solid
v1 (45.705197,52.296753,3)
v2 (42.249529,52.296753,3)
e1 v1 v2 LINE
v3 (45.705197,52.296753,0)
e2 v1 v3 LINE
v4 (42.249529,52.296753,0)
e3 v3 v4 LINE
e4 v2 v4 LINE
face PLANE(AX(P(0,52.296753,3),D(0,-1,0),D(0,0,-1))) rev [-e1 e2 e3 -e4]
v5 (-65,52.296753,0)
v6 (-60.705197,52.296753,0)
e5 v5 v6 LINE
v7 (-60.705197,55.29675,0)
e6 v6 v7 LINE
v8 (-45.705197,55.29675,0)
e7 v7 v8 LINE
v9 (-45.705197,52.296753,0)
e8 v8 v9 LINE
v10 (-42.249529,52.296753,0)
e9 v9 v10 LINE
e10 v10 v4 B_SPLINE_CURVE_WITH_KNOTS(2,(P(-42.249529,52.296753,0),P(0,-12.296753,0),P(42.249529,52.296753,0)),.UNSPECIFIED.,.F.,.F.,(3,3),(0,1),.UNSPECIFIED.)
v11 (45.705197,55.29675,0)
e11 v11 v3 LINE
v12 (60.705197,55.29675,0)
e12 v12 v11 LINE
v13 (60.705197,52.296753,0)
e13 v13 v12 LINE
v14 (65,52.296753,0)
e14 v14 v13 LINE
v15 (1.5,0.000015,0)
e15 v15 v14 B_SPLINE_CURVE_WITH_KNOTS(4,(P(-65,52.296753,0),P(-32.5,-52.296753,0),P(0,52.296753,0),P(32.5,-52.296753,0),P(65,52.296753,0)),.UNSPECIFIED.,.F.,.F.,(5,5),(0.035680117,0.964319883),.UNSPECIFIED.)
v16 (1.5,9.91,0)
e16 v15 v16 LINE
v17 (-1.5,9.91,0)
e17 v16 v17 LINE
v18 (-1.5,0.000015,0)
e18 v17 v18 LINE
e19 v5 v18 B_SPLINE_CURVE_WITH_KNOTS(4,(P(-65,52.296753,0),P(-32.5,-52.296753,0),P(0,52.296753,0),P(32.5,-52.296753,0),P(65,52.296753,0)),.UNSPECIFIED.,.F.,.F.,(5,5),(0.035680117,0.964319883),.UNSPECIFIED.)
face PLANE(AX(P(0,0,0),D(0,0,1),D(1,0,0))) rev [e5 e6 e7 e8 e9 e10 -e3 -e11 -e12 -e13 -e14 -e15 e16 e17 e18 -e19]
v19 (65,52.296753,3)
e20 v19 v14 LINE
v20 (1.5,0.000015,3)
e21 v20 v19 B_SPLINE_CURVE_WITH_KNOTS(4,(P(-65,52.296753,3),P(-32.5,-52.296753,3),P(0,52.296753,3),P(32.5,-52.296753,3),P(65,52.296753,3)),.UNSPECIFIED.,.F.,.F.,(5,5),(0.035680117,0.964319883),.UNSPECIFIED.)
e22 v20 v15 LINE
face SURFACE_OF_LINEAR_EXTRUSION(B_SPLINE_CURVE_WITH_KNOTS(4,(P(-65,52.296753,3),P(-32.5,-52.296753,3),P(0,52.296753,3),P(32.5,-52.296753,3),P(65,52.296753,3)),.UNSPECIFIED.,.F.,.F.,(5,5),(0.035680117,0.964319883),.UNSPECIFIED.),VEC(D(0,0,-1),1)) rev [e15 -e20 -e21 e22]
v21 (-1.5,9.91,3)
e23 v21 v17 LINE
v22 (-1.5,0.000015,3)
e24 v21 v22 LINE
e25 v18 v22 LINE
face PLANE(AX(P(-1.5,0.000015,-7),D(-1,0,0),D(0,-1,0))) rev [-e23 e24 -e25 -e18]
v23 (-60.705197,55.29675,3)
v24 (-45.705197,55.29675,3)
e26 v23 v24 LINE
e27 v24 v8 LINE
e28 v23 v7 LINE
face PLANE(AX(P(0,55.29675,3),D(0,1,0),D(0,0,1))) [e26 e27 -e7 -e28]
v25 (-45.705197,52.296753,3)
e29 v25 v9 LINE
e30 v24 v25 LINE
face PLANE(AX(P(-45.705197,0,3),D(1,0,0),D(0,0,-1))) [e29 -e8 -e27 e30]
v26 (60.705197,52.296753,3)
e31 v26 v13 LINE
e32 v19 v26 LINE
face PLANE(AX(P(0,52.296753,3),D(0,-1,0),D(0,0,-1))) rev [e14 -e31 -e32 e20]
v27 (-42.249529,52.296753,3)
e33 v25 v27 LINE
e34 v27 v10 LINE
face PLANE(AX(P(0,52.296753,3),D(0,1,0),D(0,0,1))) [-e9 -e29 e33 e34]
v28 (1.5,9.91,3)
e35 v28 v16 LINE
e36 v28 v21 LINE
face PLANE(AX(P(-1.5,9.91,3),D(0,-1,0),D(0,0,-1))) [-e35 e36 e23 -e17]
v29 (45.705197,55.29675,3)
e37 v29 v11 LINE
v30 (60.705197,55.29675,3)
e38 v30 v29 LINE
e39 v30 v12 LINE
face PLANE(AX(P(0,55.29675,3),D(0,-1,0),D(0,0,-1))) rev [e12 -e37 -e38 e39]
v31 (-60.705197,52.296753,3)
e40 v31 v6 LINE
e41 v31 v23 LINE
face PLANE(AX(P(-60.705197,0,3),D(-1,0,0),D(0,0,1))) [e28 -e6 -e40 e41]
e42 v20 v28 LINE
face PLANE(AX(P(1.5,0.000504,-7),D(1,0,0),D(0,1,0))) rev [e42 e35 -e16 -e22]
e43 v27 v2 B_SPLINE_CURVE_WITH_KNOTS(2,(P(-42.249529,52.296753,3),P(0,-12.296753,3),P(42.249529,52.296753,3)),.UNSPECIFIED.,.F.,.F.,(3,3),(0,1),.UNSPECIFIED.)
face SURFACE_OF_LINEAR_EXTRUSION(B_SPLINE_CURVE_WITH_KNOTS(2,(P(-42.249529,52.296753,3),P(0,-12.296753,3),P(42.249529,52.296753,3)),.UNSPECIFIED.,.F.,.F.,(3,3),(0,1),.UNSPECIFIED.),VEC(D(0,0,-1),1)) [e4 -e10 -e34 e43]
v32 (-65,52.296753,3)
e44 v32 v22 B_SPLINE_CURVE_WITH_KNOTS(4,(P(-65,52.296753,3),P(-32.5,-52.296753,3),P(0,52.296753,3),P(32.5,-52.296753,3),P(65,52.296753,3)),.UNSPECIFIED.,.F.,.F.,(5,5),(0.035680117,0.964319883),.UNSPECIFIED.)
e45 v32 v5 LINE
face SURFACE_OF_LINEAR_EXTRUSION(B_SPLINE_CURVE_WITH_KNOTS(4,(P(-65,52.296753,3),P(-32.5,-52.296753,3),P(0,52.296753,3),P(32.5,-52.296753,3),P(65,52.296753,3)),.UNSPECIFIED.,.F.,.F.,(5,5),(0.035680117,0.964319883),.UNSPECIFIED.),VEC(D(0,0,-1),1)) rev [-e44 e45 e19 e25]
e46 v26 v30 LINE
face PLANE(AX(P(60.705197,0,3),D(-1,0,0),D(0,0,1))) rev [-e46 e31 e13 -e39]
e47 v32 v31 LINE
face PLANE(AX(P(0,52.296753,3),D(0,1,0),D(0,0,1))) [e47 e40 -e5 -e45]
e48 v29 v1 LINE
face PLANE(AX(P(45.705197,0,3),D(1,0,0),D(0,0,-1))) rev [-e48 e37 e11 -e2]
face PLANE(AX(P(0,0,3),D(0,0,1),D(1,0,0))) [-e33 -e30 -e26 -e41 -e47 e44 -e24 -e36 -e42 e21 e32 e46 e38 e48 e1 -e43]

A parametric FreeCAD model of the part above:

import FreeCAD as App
import Part
import Sketcher
from FreeCAD import Vector


def add_polygon(sketch, points):
    """Adds a closed chain of lines whose ends are joined by coincident constraints."""
    first, n = sketch.GeometryCount, len(points)
    for a, b in zip(points, points[1:] + points[:1]):
        sketch.addGeometry(Part.LineSegment(App.Vector(*a, 0), App.Vector(*b, 0)), False)
    for i in range(n):
        sketch.addConstraint(Sketcher.Constraint("Coincident", first + i, 2, first + (i + 1) % n, 1))

doc = App.newDocument("Part")
body = doc.addObject("PartDesign::Body", "Body")

sketch1 = body.newObject("Sketcher::SketchObject", "Sketch")
sketch1.AttachmentSupport = (doc.getObject("XY_Plane"), [""])
sketch1.MapMode = "FlatFace"
sketch1.addGeometry([
    Part.LineSegment(Vector(-60.705197, 52.296753, 0), Vector(-65, 52.296753, 0)),
    Part.BSplineCurve([Vector(-65, 52.296753, 0), Vector(-32.5, -52.296753, 0), Vector(0, 52.296753, 0), Vector(32.5, -52.296753, 0), Vector(65, 52.296753, 0)], [5, 5], [0.035680117, 0.964319883], False, 4, [1, 1, 1, 1, 1], False),
    Part.LineSegment(Vector(65, 52.296753, 0), Vector(60.705197, 52.296753, 0)),
    Part.LineSegment(Vector(60.705197, 52.296753, 0), Vector(60.705197, 55.29675, 0)),
    Part.LineSegment(Vector(60.705197, 55.29675, 0), Vector(45.705197, 55.29675, 0)),
    Part.LineSegment(Vector(45.705197, 55.29675, 0), Vector(45.705197, 52.296753, 0)),
    Part.LineSegment(Vector(45.705197, 52.296753, 0), Vector(42.249529, 52.296753, 0)),
    Part.BSplineCurve([Vector(-42.249529, 52.296753, 0), Vector(0, -12.296753, 0), Vector(42.249529, 52.296753, 0)], [3, 3], [0, 1], False, 2, [1, 1, 1], False),
    Part.LineSegment(Vector(-42.249529, 52.296753, 0), Vector(-45.705197, 52.296753, 0)),
    Part.LineSegment(Vector(-45.705197, 52.296753, 0), Vector(-45.705197, 55.29675, 0)),
    Part.LineSegment(Vector(-45.705197, 55.29675, 0), Vector(-60.705197, 55.29675, 0)),
    Part.LineSegment(Vector(-60.705197, 55.29675, 0), Vector(-60.705197, 52.296753, 0)),
], False)
sketch1.addConstraint([
    Sketcher.Constraint("Block", 1),
    Sketcher.Constraint("Block", 7),
    Sketcher.Constraint("Coincident", 0, 2, 1, 1),
    Sketcher.Constraint("Coincident", 1, 2, 2, 1),
    Sketcher.Constraint("Coincident", 2, 2, 3, 1),
    Sketcher.Constraint("Coincident", 3, 2, 4, 1),
    Sketcher.Constraint("Coincident", 4, 2, 5, 1),
    Sketcher.Constraint("Coincident", 5, 2, 6, 1),
    Sketcher.Constraint("Coincident", 6, 2, 7, 2),
    Sketcher.Constraint("Coincident", 7, 1, 8, 1),
    Sketcher.Constraint("Coincident", 8, 2, 9, 1),
    Sketcher.Constraint("Coincident", 9, 2, 10, 1),
    Sketcher.Constraint("Coincident", 10, 2, 11, 1),
    Sketcher.Constraint("Coincident", 11, 2, 0, 1),
    Sketcher.Constraint("Horizontal", 0),
    Sketcher.Constraint("Horizontal", 2),
    Sketcher.Constraint("Vertical", 3),
    Sketcher.Constraint("Horizontal", 4),
    Sketcher.Constraint("Vertical", 5),
    Sketcher.Constraint("Horizontal", 6),
    Sketcher.Constraint("Horizontal", 8),
    Sketcher.Constraint("Vertical", 9),
    Sketcher.Constraint("Horizontal", 10),
    Sketcher.Constraint("Vertical", 11),
    Sketcher.Constraint("Symmetric", 4, 2, 9, 2, -2),
    Sketcher.Constraint("Equal", 0, 2),
    Sketcher.Constraint("DistanceX", 4, 2, 4, 1, 15.0),
    Sketcher.Constraint("DistanceX", 6, 2, 6, 1, 3.455668),
    Sketcher.Constraint("DistanceY", 3, 1, 3, 2, 2.999997),
])
pad1 = body.newObject("PartDesign::Pad", "Pad")
pad1.Profile = sketch1
pad1.Length = 3

sketch2 = body.newObject("Sketcher::SketchObject", "Sketch001")
sketch2.AttachmentSupport = (doc.getObject("XY_Plane"), [""])
sketch2.MapMode = "FlatFace"
sketch2.AttachmentOffset = App.Placement(Vector(0, 0, 3), App.Rotation())
add_polygon(sketch2, [(-1.5, -2.7), (1.5, -2.7), (1.5, 10.2), (-1.5, 10.2)])
sketch2.addConstraint([
    Sketcher.Constraint("Horizontal", 0),
    Sketcher.Constraint("Vertical", 1),
    Sketcher.Constraint("Horizontal", 2),
    Sketcher.Constraint("Vertical", 3),
    Sketcher.Constraint("DistanceX", 0, 1, 0, 2, 3.0),
    Sketcher.Constraint("DistanceX", -1, 1, 0, 2, 1.5),
    Sketcher.Constraint("DistanceY", -1, 1, 1, 2, 10.2),
    Sketcher.Constraint("DistanceY", 1, 1, 1, 2, 12.886062),
])
pocket1 = body.newObject("PartDesign::Pocket", "Pocket")
pocket1.Profile = sketch2
pocket1.Length = 10

sketch3 = body.newObject("Sketcher::SketchObject", "Sketch002")
sketch3.AttachmentSupport = (doc.getObject("XY_Plane"), [""])
sketch3.MapMode = "FlatFace"
add_polygon(sketch3, [(1.5, 10.2), (1.5, 9.91), (-1.5, 9.91), (-1.5, 10.2)])
sketch3.addConstraint([
    Sketcher.Constraint("Vertical", 0),
    Sketcher.Constraint("Horizontal", 1),
    Sketcher.Constraint("Vertical", 2),
    Sketcher.Constraint("Horizontal", 3),
    Sketcher.Constraint("DistanceX", 1, 2, 1, 1, 3.0),
    Sketcher.Constraint("DistanceY", 0, 2, 0, 1, 0.29),
    Sketcher.Constraint("DistanceX", -1, 1, 0, 2, 1.5),
    Sketcher.Constraint("DistanceY", -1, 1, 2, 2, 10.2),
])
pad2 = body.newObject("PartDesign::Pad", "Pad001")
pad2.Profile = sketch3
pad2.Length = 3

doc.recompute()
